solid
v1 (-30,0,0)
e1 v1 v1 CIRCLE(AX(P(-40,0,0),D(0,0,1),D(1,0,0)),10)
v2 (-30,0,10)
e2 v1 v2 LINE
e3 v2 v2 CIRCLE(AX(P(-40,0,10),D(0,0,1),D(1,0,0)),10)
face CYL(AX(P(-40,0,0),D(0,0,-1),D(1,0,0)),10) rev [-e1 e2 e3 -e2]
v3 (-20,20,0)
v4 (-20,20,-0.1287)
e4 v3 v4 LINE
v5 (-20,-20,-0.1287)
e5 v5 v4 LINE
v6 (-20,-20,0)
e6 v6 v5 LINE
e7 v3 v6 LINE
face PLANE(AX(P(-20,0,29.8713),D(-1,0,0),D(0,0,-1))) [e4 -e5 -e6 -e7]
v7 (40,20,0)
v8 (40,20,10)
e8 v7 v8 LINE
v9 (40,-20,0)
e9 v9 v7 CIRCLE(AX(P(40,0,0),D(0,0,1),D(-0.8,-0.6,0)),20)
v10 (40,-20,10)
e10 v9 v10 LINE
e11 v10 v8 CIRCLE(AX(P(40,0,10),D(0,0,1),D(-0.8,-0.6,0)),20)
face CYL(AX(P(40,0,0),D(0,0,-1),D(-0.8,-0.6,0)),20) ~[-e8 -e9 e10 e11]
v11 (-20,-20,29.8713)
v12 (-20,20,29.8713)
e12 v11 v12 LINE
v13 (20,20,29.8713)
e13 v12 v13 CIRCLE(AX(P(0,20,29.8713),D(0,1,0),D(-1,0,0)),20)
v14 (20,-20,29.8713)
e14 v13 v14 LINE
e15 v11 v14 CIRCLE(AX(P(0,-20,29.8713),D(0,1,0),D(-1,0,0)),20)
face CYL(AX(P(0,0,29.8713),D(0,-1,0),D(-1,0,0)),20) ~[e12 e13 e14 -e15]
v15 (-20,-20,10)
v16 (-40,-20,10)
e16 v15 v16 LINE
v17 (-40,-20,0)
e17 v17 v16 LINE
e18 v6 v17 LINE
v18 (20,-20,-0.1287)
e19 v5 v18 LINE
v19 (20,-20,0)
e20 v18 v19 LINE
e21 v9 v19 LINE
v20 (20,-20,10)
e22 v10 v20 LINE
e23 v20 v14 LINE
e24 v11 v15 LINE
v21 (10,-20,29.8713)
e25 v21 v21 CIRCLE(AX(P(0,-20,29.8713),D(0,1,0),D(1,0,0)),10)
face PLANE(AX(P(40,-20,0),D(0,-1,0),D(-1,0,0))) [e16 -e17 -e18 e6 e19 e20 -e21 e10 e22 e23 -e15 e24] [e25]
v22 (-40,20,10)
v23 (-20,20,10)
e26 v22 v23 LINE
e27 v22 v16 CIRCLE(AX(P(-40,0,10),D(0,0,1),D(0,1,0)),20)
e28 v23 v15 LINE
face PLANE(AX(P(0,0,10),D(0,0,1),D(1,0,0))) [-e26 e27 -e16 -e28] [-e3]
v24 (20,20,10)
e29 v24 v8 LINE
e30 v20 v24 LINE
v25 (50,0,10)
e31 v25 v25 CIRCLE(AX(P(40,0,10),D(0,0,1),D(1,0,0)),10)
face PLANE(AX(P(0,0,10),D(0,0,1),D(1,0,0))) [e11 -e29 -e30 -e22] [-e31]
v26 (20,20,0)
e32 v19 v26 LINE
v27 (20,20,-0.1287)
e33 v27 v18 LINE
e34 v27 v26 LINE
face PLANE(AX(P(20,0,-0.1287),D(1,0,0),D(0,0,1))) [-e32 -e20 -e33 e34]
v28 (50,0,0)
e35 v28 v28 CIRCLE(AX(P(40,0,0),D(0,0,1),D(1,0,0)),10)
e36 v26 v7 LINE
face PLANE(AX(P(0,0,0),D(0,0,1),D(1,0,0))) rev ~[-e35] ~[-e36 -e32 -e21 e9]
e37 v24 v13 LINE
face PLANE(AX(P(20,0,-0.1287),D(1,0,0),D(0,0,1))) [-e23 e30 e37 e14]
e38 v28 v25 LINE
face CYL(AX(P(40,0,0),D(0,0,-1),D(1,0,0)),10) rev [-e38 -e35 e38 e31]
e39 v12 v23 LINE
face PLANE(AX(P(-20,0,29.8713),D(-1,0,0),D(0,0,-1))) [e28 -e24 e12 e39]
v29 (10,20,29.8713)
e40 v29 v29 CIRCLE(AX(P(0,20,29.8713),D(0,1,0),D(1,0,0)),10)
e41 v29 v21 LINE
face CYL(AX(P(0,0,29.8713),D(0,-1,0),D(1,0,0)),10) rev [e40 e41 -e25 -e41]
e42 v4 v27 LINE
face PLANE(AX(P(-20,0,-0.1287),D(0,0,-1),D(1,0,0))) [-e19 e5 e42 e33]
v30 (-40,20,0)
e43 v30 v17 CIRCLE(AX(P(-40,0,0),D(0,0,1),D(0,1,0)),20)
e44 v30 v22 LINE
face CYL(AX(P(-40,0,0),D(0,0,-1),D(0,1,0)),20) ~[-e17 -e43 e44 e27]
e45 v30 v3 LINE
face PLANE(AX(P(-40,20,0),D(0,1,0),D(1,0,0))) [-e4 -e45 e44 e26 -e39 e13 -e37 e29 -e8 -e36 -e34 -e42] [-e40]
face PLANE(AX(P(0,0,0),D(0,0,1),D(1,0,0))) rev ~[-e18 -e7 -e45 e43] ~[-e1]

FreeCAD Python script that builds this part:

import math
import FreeCAD as App
import Part
import Sketcher
from FreeCAD import Vector
Q = App.Units.Quantity

doc = App.newDocument("Part")
body = doc.addObject("PartDesign::Body", "Body")

# Sketch on XY plane
sketch1 = doc.addObject("Sketcher::SketchObject", "Sketch")
body.addObject(sketch1)
sketch1.AttachmentSupport = (doc.XY_Plane, [""])
sketch1.MapMode = "FlatFace"
sketch1.addGeometry([
    Part.LineSegment(Vector(-40, -20, 0), Vector(40, -20, 0)),  # 0
    Part.ArcOfCircle(Part.Circle(Vector(40, 0, 0), Vector(0, 0, 1), 20), math.radians(-90), math.radians(90)),  # 1
    Part.LineSegment(Vector(40, 20, 0), Vector(-40, 20, 0)),  # 2
    Part.ArcOfCircle(Part.Circle(Vector(-40, 0, 0), Vector(0, 0, 1), 20), math.radians(90), math.radians(270)),  # 3
    Part.Circle(Vector(-40, 0, 0), Vector(0, 0, 1), 10),  # 4
    Part.Circle(Vector(40, 0, 0), Vector(0, 0, 1), 10),  # 5
], False)
sketch1.addConstraint([
    Sketcher.Constraint("Tangent", 0, 2, 1, 1),
    Sketcher.Constraint("Tangent", 1, 2, 2, 1),
    Sketcher.Constraint("Tangent", 2, 2, 3, 1),
    Sketcher.Constraint("Tangent", 3, 2, 0, 1),
    Sketcher.Constraint("Horizontal", 0),
    Sketcher.Constraint("Horizontal", 2),
    Sketcher.Constraint("Coincident", 4, 3, 3, 3),
    Sketcher.Constraint("Coincident", 5, 3, 1, 3),
    Sketcher.Constraint("Equal", 4, 5),
    Sketcher.Constraint("Symmetric", 1, 3, 3, 3, -1, 1),
    Sketcher.Constraint("Radius", 1, Q("20 mm")),
    Sketcher.Constraint("DistanceX", 0, 1, 0, 2, Q("80 mm")),
    Sketcher.Constraint("Diameter", 4, Q("20 mm")),
])
pad1 = doc.addObject("PartDesign::Pad", "Pad")
body.addObject(pad1)
pad1.Profile = sketch1
pad1.Length = 10

# Sketch on XZ plane
sketch2 = doc.addObject("Sketcher::SketchObject", "Sketch001")
body.addObject(sketch2)
sketch2.AttachmentSupport = (doc.XZ_Plane, [""])
sketch2.MapMode = "FlatFace"
sketch2.addGeometry([
    Part.LineSegment(Vector(20, -0.1287, 0), Vector(-20, -0.1287, 0)),  # 0
    Part.LineSegment(Vector(-20, -0.1287, 0), Vector(-20, 29.8713, 0)),  # 1
    Part.ArcOfCircle(Part.Circle(Vector(0, 29.8713, 0), Vector(0, 0, 1), 20), math.radians(0), math.radians(180)),  # 2
    Part.LineSegment(Vector(20, 29.8713, 0), Vector(20, -0.1287, 0)),  # 3
    Part.Circle(Vector(0, 29.8713, 0), Vector(0, 0, 1), 10),  # 4
], False)
sketch2.addConstraint([
    Sketcher.Constraint("Coincident", 0, 2, 1, 1),
    Sketcher.Constraint("Tangent", 1, 2, 2, 2),
    Sketcher.Constraint("Tangent", 2, 1, 3, 1),
    Sketcher.Constraint("Coincident", 3, 2, 0, 1),
    Sketcher.Constraint("Horizontal", 0),
    Sketcher.Constraint("Vertical", 1),
    Sketcher.Constraint("Vertical", 3),
    Sketcher.Constraint("Coincident", 4, 3, 2, 3),
    Sketcher.Constraint("PointOnObject", 2, 3, -2),
    Sketcher.Constraint("Diameter", 4, Q("20 mm")),
    Sketcher.Constraint("Radius", 2, Q("20 mm")),
    Sketcher.Constraint("DistanceY", 1, 1, 1, 2, Q("30 mm")),
    Sketcher.Constraint("DistanceY", -1, 1, 2, 3, Q("29.8713 mm")),
])
pad2 = doc.addObject("PartDesign::Pad", "Pad001")
body.addObject(pad2)
pad2.Profile = sketch2
pad2.Length = 40
pad2.Midplane = True

doc.recompute()
